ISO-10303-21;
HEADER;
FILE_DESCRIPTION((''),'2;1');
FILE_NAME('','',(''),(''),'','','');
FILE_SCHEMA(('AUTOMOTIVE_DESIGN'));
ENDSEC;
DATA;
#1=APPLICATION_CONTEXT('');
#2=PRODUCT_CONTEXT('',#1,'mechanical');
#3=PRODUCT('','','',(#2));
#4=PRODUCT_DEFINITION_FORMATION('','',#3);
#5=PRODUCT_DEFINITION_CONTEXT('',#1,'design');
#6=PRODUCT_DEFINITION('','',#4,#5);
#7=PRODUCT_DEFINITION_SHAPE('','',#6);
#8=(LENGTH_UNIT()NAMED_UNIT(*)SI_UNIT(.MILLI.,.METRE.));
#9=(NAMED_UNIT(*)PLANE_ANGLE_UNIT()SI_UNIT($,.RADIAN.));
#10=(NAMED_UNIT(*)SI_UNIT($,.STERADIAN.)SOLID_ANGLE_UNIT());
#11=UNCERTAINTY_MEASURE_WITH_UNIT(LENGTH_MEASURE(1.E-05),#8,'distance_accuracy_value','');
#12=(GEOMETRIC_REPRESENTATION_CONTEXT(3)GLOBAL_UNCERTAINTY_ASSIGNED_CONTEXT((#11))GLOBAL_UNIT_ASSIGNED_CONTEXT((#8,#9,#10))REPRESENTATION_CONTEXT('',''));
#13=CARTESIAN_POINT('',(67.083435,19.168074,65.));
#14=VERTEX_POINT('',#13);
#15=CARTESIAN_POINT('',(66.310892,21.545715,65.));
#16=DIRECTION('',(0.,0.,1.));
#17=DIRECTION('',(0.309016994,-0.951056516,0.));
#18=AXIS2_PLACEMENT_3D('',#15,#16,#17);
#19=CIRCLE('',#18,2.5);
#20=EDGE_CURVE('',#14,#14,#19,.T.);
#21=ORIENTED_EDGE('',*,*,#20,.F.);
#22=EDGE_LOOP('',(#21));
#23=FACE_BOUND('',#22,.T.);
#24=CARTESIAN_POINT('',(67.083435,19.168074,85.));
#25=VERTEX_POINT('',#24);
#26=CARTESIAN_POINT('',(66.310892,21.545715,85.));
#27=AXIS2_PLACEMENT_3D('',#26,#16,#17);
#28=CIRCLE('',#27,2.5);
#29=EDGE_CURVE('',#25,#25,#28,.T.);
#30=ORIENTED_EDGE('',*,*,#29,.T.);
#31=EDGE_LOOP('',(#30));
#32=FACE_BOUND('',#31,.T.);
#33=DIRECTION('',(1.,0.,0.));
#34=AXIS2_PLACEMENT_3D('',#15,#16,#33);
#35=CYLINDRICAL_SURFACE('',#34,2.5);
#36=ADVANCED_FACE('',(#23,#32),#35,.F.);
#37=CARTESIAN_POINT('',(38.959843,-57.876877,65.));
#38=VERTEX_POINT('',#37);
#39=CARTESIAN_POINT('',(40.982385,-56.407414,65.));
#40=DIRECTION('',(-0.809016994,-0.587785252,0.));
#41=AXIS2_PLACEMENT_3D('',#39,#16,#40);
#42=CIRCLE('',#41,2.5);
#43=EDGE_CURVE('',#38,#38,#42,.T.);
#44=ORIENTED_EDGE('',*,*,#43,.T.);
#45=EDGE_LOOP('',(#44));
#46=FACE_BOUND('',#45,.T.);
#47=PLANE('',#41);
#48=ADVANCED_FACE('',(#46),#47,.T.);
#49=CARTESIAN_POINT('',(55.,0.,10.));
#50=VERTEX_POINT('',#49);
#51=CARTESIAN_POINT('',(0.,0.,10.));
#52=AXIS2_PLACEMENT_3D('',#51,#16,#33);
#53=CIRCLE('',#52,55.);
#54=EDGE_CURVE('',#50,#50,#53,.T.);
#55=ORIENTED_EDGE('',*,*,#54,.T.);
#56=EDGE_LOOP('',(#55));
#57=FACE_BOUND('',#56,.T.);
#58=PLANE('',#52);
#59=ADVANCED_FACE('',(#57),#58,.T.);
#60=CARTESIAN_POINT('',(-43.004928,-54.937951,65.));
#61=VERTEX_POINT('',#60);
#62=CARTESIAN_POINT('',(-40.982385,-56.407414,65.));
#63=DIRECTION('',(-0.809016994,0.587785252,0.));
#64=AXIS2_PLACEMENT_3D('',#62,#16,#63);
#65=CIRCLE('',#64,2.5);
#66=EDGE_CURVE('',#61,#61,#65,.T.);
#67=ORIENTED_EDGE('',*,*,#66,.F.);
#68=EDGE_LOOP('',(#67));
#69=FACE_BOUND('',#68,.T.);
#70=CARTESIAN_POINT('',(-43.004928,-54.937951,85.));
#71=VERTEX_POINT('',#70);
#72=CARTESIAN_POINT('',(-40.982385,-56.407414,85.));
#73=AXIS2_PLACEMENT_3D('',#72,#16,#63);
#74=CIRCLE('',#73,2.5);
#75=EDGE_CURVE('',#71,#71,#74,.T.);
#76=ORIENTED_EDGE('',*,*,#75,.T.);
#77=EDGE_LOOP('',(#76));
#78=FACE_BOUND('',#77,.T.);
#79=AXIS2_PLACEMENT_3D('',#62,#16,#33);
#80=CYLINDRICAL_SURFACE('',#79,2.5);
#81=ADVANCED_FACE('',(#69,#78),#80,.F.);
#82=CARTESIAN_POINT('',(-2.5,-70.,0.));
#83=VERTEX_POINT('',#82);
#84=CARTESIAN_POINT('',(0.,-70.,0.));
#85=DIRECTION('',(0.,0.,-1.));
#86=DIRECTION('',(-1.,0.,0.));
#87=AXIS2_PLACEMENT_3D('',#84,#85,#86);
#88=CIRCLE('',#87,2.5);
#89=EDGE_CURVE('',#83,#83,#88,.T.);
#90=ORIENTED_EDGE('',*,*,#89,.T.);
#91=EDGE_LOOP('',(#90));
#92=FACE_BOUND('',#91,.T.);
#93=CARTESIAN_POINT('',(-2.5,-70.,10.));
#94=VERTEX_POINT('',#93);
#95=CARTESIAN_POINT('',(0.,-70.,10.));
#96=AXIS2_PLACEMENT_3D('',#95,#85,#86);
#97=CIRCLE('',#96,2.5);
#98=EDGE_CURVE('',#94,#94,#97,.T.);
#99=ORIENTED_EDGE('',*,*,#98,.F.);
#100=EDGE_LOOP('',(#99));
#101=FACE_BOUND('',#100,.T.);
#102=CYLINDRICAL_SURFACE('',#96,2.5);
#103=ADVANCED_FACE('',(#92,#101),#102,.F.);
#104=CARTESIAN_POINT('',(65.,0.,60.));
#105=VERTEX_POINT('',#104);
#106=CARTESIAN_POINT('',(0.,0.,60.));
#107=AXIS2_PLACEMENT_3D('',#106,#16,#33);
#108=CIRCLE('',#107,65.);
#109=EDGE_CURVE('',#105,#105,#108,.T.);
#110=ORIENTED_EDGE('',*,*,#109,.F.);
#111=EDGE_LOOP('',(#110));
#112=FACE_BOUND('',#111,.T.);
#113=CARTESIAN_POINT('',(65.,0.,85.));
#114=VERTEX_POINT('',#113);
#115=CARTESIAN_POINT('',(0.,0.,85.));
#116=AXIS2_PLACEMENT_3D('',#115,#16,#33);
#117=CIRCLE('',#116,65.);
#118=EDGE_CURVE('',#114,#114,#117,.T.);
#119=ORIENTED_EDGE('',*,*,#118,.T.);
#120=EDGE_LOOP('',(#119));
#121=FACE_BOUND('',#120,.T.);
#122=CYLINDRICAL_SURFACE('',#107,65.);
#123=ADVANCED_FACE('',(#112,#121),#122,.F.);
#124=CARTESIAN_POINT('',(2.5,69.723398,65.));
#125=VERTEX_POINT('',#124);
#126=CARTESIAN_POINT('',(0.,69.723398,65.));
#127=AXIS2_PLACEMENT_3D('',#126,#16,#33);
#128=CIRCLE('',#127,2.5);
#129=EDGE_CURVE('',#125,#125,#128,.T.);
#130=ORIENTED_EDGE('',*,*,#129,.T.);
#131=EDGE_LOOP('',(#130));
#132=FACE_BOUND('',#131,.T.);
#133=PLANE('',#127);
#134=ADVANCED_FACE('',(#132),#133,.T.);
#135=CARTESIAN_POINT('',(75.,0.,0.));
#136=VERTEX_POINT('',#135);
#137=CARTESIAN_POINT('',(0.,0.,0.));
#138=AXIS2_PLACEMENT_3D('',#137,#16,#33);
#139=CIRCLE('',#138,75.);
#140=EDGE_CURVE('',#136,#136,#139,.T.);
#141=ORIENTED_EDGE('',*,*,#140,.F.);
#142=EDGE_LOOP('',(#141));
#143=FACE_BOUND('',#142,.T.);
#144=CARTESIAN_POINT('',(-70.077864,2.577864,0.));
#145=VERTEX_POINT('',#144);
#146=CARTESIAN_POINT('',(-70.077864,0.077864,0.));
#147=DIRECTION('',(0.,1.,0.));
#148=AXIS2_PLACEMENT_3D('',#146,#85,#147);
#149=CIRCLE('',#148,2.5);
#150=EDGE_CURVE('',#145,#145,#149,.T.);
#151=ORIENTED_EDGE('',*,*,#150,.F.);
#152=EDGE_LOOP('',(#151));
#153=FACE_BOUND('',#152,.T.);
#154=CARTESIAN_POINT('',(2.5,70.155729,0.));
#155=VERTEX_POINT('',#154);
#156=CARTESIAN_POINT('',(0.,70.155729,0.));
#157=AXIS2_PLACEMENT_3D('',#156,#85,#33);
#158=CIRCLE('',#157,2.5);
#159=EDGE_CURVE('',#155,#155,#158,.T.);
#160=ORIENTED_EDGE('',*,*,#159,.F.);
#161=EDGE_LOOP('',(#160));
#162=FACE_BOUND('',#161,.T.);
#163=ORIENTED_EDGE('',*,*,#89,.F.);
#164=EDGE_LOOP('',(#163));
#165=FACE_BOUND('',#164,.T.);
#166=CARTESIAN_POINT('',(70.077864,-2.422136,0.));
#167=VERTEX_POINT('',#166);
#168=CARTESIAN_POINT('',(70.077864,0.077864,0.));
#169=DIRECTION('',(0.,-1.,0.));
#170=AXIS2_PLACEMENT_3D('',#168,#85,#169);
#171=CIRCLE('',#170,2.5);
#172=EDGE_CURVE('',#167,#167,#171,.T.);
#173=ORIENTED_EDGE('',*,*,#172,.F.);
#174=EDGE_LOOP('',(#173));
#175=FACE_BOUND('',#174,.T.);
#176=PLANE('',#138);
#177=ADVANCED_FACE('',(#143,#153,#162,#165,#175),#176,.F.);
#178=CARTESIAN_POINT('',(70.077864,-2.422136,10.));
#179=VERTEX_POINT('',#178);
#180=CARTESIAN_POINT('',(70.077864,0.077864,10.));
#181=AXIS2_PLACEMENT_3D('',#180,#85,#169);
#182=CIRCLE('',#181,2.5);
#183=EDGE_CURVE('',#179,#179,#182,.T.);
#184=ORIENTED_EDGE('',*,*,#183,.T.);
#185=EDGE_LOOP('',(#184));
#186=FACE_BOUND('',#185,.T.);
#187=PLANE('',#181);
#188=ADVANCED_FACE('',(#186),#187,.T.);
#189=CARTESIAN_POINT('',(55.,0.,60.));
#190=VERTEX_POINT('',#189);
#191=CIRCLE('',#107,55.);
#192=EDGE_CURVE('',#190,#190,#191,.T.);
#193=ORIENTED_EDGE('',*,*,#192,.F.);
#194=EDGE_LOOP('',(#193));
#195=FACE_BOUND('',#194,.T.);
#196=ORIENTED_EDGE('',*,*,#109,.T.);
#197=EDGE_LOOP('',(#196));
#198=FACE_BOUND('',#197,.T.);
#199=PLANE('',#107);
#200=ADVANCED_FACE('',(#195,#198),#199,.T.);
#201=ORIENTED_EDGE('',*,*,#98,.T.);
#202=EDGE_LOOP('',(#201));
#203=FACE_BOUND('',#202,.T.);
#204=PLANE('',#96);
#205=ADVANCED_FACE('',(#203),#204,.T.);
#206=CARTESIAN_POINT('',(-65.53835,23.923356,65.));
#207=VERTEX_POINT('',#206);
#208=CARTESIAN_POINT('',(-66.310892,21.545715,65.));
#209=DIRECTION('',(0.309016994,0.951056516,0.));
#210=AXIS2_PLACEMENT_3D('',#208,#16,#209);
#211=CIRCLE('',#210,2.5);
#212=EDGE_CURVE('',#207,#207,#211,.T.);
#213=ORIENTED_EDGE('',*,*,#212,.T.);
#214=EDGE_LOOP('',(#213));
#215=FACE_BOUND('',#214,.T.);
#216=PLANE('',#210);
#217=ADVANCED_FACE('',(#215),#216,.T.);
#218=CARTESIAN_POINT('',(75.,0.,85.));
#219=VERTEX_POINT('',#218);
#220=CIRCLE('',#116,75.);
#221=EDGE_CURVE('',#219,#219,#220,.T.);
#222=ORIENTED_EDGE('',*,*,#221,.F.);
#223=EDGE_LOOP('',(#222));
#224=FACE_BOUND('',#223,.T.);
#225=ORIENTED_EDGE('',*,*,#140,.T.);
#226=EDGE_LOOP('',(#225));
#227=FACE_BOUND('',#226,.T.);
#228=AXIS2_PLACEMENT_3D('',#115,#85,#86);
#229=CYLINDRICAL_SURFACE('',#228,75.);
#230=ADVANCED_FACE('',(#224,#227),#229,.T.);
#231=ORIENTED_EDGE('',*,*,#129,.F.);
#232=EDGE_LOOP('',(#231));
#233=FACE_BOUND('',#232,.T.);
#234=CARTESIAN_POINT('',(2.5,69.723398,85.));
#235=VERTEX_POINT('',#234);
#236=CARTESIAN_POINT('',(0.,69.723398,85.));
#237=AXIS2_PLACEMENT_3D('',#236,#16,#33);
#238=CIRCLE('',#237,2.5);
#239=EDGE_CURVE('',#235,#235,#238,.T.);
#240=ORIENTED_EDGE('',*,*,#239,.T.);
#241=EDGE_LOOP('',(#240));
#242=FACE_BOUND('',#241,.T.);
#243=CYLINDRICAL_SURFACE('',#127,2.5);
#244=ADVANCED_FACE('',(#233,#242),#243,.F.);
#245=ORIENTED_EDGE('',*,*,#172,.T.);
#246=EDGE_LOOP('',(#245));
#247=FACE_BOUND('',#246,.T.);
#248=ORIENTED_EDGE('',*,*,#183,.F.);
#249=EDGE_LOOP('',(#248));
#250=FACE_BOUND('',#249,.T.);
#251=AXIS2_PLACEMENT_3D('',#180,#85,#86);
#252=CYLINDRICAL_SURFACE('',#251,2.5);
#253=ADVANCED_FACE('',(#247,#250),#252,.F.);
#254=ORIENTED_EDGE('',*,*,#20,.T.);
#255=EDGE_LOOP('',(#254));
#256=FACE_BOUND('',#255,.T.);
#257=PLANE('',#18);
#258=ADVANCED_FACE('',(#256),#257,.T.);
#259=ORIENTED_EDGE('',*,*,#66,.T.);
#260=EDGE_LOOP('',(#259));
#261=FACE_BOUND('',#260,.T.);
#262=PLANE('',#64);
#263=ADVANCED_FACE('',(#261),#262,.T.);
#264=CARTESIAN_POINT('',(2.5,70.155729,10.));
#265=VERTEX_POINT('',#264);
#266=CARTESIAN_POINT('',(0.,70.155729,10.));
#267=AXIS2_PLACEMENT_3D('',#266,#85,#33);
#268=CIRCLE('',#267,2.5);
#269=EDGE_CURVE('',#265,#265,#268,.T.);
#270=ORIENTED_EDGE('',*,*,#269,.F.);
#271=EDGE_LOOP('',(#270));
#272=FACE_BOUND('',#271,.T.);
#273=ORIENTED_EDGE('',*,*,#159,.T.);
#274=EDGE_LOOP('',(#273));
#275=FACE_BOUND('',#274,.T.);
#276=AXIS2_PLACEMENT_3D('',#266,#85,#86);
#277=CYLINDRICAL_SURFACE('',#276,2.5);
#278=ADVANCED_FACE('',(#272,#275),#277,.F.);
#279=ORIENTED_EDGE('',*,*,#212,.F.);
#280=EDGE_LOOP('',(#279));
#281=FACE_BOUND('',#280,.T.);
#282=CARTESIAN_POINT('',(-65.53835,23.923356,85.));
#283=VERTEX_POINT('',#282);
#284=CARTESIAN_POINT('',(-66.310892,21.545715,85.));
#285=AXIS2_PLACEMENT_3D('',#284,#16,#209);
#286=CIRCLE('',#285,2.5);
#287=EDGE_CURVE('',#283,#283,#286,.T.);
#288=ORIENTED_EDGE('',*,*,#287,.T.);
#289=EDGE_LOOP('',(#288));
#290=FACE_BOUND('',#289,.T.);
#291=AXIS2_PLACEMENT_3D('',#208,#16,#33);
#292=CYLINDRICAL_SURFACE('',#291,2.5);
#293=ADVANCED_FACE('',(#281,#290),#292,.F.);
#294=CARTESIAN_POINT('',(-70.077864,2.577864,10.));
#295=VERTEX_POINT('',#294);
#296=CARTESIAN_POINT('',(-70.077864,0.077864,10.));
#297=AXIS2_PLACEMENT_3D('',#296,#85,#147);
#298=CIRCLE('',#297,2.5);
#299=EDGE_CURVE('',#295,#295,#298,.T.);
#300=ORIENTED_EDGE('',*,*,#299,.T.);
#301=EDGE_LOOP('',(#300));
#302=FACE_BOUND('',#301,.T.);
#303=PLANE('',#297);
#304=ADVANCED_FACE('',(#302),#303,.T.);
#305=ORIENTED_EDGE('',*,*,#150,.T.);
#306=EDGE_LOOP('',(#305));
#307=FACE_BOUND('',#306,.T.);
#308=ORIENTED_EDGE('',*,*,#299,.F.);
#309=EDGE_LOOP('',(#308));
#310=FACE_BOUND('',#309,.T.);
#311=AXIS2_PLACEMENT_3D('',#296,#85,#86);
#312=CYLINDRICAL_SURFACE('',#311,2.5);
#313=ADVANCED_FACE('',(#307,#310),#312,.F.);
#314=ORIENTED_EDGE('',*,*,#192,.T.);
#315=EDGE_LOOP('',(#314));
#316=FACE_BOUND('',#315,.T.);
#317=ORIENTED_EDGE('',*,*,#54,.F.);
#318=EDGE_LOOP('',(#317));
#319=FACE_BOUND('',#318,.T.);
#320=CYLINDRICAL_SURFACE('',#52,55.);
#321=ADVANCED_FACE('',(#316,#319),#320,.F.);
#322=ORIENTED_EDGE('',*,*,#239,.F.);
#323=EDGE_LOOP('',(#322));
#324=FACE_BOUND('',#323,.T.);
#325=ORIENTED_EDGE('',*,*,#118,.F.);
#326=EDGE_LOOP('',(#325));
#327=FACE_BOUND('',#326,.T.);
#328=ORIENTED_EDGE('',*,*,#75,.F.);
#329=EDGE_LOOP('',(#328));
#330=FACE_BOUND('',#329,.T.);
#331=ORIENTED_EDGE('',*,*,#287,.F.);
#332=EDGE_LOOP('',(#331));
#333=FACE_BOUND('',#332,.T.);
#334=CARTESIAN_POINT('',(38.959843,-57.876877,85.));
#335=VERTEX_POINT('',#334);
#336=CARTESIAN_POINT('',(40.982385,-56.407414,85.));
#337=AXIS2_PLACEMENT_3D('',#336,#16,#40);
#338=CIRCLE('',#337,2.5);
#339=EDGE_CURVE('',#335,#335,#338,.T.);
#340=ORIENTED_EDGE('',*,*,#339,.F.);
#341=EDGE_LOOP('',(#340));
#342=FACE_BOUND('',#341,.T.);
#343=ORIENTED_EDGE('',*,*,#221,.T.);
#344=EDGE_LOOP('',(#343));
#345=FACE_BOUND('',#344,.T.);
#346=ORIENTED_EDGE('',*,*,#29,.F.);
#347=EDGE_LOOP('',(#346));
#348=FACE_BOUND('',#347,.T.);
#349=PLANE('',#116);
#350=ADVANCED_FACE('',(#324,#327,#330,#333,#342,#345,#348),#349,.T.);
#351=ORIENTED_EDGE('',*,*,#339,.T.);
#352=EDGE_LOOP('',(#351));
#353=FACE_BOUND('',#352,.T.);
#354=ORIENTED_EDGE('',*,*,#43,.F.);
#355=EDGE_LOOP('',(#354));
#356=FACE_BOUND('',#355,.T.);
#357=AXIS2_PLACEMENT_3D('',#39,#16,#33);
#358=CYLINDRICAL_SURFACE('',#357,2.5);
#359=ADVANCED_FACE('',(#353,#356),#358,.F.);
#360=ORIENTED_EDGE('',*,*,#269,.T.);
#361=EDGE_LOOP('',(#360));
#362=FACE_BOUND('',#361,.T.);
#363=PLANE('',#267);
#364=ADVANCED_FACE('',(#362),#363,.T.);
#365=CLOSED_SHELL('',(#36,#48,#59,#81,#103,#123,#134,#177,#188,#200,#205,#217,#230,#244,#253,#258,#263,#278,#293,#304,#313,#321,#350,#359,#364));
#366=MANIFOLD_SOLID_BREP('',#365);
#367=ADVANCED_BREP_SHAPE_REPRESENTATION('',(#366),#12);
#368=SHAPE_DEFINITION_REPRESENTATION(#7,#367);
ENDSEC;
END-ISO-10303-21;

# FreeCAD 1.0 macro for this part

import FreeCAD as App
import Part
import Sketcher
from FreeCAD import Vector
Q = App.Units.Quantity

doc = App.newDocument("Part")
params = doc.addObject("Spreadsheet::Sheet", "Params")
for row, (alias, value) in enumerate([
    ("sketch1_diameter", "150 mm"),
    ("pad1_length", "85 mm"),
    ("sketch2_diameter", "130 mm"),
    ("pocket1_length", "25 mm"),
    ("sketch3_diameter", "110 mm"),
    ("pocket2_length", "50 mm"),
    ("sketch4_diameter", "5 mm"),
    ("pocket3_length", "20 mm"),
    ("sketch5_diameter", "5 mm"),
    ("pocket4_length", "10 mm"),
], start=1):
    params.set(f"A{row}", alias)
    params.set(f"B{row}", "=" + value)
    params.setAlias(f"B{row}", alias)

body = doc.addObject("PartDesign::Body", "Body")

sketch1 = body.newObject("Sketcher::SketchObject", "Sketch")
sketch1.AttachmentSupport = (doc.getObject("XY_Plane"), [""])
sketch1.MapMode = "FlatFace"
sketch1.addGeometry(Part.Circle(Vector(0, 0, 0), Vector(0, 0, 1), 75), False)
sketch1.addConstraint([
    Sketcher.Constraint("Coincident", 0, 3, -1, 1),
    Sketcher.Constraint("Diameter", 0, Q("150 mm")),
])
sketch1.setExpression("Constraints[1]", "Params.sketch1_diameter")
pad1 = body.newObject("PartDesign::Pad", "Pad")
pad1.Profile = sketch1
pad1.setExpression("Length", "Params.pad1_length")

sketch2 = body.newObject("Sketcher::SketchObject", "Sketch001")
sketch2.AttachmentSupport = (doc.getObject("XY_Plane"), [""])
sketch2.MapMode = "FlatFace"
sketch2.AttachmentOffset = App.Placement(Vector(0, 0, 85), App.Rotation())
sketch2.addGeometry(Part.Circle(Vector(0, 0, 0), Vector(0, 0, 1), 65), False)
sketch2.addConstraint([
    Sketcher.Constraint("Coincident", 0, 3, -1, 1),
    Sketcher.Constraint("Diameter", 0, Q("130 mm")),
])
sketch2.setExpression("Constraints[1]", "Params.sketch2_diameter")
pocket1 = body.newObject("PartDesign::Pocket", "Pocket")
pocket1.Profile = sketch2
pocket1.setExpression("Length", "Params.pocket1_length")

sketch3 = body.newObject("Sketcher::SketchObject", "Sketch002")
sketch3.AttachmentSupport = (doc.getObject("XY_Plane"), [""])
sketch3.MapMode = "FlatFace"
sketch3.AttachmentOffset = App.Placement(Vector(0, 0, 60), App.Rotation())
sketch3.addGeometry(Part.Circle(Vector(0, 0, 0), Vector(0, 0, 1), 55), False)
sketch3.addConstraint([
    Sketcher.Constraint("Coincident", 0, 3, -1, 1),
    Sketcher.Constraint("Diameter", 0, Q("110 mm")),
])
sketch3.setExpression("Constraints[1]", "Params.sketch3_diameter")
pocket2 = body.newObject("PartDesign::Pocket", "Pocket001")
pocket2.Profile = sketch3
pocket2.setExpression("Length", "Params.pocket2_length")

sketch4 = body.newObject("Sketcher::SketchObject", "Sketch003")
sketch4.AttachmentSupport = (doc.getObject("XY_Plane"), [""])
sketch4.MapMode = "FlatFace"
sketch4.AttachmentOffset = App.Placement(Vector(0, 0, 85), App.Rotation())
sketch4.addGeometry(Part.Circle(Vector(0, 69.7, 0), Vector(0, 0, 1), 2.5), False)
sketch4.addConstraint([
    Sketcher.Constraint("PointOnObject", 0, 3, -2),
    Sketcher.Constraint("Diameter", 0, Q("5 mm")),
    Sketcher.Constraint("DistanceY", -1, 1, 0, 3, Q("69.723398 mm")),
])
sketch4.setExpression("Constraints[1]", "Params.sketch4_diameter")
pocket3 = body.newObject("PartDesign::Pocket", "Pocket002")
pocket3.Profile = sketch4
pocket3.setExpression("Length", "Params.pocket3_length")
doc.recompute()

polarpattern = body.newObject("PartDesign::PolarPattern", "PolarPattern")
polarpattern.Originals = [pocket3]
polarpattern.Axis = (doc.getObject("Z_Axis"), [""])
polarpattern.Angle = 360
polarpattern.Occurrences = 5
body.Tip = polarpattern

sketch5 = body.newObject("Sketcher::SketchObject", "Sketch004")
sketch5.AttachmentSupport = (doc.getObject("XY_Plane"), [""])
sketch5.MapMode = "FlatFace"
sketch5.addGeometry(Part.Circle(Vector(0, -70, 0), Vector(0, 0, 1), 2.5), False)
sketch5.addConstraint([
    Sketcher.Constraint("PointOnObject", 0, 3, -2),
    Sketcher.Constraint("Diameter", 0, Q("5 mm")),
    Sketcher.Constraint("DistanceY", 0, 3, -1, 1, Q("70 mm")),
])
sketch5.setExpression("Constraints[1]", "Params.sketch5_diameter")
pocket4 = body.newObject("PartDesign::Pocket", "Pocket003")
pocket4.Profile = sketch5
pocket4.setExpression("Length", "Params.pocket4_length")
pocket4.Reversed = True
doc.recompute()

datumline = body.newObject("PartDesign::Line", "DatumLine")
datumline.Placement = App.Placement(Vector(0, 0.077864, 0), App.Rotation(Vector(0, 0, 1), Vector(0, 0, 1)))
polarpattern2 = body.newObject("PartDesign::PolarPattern", "PolarPattern001")
polarpattern2.Originals = [pocket4]
polarpattern2.Axis = (datumline, [""])
polarpattern2.Angle = 360
polarpattern2.Occurrences = 4
body.Tip = polarpattern2

doc.recompute()
